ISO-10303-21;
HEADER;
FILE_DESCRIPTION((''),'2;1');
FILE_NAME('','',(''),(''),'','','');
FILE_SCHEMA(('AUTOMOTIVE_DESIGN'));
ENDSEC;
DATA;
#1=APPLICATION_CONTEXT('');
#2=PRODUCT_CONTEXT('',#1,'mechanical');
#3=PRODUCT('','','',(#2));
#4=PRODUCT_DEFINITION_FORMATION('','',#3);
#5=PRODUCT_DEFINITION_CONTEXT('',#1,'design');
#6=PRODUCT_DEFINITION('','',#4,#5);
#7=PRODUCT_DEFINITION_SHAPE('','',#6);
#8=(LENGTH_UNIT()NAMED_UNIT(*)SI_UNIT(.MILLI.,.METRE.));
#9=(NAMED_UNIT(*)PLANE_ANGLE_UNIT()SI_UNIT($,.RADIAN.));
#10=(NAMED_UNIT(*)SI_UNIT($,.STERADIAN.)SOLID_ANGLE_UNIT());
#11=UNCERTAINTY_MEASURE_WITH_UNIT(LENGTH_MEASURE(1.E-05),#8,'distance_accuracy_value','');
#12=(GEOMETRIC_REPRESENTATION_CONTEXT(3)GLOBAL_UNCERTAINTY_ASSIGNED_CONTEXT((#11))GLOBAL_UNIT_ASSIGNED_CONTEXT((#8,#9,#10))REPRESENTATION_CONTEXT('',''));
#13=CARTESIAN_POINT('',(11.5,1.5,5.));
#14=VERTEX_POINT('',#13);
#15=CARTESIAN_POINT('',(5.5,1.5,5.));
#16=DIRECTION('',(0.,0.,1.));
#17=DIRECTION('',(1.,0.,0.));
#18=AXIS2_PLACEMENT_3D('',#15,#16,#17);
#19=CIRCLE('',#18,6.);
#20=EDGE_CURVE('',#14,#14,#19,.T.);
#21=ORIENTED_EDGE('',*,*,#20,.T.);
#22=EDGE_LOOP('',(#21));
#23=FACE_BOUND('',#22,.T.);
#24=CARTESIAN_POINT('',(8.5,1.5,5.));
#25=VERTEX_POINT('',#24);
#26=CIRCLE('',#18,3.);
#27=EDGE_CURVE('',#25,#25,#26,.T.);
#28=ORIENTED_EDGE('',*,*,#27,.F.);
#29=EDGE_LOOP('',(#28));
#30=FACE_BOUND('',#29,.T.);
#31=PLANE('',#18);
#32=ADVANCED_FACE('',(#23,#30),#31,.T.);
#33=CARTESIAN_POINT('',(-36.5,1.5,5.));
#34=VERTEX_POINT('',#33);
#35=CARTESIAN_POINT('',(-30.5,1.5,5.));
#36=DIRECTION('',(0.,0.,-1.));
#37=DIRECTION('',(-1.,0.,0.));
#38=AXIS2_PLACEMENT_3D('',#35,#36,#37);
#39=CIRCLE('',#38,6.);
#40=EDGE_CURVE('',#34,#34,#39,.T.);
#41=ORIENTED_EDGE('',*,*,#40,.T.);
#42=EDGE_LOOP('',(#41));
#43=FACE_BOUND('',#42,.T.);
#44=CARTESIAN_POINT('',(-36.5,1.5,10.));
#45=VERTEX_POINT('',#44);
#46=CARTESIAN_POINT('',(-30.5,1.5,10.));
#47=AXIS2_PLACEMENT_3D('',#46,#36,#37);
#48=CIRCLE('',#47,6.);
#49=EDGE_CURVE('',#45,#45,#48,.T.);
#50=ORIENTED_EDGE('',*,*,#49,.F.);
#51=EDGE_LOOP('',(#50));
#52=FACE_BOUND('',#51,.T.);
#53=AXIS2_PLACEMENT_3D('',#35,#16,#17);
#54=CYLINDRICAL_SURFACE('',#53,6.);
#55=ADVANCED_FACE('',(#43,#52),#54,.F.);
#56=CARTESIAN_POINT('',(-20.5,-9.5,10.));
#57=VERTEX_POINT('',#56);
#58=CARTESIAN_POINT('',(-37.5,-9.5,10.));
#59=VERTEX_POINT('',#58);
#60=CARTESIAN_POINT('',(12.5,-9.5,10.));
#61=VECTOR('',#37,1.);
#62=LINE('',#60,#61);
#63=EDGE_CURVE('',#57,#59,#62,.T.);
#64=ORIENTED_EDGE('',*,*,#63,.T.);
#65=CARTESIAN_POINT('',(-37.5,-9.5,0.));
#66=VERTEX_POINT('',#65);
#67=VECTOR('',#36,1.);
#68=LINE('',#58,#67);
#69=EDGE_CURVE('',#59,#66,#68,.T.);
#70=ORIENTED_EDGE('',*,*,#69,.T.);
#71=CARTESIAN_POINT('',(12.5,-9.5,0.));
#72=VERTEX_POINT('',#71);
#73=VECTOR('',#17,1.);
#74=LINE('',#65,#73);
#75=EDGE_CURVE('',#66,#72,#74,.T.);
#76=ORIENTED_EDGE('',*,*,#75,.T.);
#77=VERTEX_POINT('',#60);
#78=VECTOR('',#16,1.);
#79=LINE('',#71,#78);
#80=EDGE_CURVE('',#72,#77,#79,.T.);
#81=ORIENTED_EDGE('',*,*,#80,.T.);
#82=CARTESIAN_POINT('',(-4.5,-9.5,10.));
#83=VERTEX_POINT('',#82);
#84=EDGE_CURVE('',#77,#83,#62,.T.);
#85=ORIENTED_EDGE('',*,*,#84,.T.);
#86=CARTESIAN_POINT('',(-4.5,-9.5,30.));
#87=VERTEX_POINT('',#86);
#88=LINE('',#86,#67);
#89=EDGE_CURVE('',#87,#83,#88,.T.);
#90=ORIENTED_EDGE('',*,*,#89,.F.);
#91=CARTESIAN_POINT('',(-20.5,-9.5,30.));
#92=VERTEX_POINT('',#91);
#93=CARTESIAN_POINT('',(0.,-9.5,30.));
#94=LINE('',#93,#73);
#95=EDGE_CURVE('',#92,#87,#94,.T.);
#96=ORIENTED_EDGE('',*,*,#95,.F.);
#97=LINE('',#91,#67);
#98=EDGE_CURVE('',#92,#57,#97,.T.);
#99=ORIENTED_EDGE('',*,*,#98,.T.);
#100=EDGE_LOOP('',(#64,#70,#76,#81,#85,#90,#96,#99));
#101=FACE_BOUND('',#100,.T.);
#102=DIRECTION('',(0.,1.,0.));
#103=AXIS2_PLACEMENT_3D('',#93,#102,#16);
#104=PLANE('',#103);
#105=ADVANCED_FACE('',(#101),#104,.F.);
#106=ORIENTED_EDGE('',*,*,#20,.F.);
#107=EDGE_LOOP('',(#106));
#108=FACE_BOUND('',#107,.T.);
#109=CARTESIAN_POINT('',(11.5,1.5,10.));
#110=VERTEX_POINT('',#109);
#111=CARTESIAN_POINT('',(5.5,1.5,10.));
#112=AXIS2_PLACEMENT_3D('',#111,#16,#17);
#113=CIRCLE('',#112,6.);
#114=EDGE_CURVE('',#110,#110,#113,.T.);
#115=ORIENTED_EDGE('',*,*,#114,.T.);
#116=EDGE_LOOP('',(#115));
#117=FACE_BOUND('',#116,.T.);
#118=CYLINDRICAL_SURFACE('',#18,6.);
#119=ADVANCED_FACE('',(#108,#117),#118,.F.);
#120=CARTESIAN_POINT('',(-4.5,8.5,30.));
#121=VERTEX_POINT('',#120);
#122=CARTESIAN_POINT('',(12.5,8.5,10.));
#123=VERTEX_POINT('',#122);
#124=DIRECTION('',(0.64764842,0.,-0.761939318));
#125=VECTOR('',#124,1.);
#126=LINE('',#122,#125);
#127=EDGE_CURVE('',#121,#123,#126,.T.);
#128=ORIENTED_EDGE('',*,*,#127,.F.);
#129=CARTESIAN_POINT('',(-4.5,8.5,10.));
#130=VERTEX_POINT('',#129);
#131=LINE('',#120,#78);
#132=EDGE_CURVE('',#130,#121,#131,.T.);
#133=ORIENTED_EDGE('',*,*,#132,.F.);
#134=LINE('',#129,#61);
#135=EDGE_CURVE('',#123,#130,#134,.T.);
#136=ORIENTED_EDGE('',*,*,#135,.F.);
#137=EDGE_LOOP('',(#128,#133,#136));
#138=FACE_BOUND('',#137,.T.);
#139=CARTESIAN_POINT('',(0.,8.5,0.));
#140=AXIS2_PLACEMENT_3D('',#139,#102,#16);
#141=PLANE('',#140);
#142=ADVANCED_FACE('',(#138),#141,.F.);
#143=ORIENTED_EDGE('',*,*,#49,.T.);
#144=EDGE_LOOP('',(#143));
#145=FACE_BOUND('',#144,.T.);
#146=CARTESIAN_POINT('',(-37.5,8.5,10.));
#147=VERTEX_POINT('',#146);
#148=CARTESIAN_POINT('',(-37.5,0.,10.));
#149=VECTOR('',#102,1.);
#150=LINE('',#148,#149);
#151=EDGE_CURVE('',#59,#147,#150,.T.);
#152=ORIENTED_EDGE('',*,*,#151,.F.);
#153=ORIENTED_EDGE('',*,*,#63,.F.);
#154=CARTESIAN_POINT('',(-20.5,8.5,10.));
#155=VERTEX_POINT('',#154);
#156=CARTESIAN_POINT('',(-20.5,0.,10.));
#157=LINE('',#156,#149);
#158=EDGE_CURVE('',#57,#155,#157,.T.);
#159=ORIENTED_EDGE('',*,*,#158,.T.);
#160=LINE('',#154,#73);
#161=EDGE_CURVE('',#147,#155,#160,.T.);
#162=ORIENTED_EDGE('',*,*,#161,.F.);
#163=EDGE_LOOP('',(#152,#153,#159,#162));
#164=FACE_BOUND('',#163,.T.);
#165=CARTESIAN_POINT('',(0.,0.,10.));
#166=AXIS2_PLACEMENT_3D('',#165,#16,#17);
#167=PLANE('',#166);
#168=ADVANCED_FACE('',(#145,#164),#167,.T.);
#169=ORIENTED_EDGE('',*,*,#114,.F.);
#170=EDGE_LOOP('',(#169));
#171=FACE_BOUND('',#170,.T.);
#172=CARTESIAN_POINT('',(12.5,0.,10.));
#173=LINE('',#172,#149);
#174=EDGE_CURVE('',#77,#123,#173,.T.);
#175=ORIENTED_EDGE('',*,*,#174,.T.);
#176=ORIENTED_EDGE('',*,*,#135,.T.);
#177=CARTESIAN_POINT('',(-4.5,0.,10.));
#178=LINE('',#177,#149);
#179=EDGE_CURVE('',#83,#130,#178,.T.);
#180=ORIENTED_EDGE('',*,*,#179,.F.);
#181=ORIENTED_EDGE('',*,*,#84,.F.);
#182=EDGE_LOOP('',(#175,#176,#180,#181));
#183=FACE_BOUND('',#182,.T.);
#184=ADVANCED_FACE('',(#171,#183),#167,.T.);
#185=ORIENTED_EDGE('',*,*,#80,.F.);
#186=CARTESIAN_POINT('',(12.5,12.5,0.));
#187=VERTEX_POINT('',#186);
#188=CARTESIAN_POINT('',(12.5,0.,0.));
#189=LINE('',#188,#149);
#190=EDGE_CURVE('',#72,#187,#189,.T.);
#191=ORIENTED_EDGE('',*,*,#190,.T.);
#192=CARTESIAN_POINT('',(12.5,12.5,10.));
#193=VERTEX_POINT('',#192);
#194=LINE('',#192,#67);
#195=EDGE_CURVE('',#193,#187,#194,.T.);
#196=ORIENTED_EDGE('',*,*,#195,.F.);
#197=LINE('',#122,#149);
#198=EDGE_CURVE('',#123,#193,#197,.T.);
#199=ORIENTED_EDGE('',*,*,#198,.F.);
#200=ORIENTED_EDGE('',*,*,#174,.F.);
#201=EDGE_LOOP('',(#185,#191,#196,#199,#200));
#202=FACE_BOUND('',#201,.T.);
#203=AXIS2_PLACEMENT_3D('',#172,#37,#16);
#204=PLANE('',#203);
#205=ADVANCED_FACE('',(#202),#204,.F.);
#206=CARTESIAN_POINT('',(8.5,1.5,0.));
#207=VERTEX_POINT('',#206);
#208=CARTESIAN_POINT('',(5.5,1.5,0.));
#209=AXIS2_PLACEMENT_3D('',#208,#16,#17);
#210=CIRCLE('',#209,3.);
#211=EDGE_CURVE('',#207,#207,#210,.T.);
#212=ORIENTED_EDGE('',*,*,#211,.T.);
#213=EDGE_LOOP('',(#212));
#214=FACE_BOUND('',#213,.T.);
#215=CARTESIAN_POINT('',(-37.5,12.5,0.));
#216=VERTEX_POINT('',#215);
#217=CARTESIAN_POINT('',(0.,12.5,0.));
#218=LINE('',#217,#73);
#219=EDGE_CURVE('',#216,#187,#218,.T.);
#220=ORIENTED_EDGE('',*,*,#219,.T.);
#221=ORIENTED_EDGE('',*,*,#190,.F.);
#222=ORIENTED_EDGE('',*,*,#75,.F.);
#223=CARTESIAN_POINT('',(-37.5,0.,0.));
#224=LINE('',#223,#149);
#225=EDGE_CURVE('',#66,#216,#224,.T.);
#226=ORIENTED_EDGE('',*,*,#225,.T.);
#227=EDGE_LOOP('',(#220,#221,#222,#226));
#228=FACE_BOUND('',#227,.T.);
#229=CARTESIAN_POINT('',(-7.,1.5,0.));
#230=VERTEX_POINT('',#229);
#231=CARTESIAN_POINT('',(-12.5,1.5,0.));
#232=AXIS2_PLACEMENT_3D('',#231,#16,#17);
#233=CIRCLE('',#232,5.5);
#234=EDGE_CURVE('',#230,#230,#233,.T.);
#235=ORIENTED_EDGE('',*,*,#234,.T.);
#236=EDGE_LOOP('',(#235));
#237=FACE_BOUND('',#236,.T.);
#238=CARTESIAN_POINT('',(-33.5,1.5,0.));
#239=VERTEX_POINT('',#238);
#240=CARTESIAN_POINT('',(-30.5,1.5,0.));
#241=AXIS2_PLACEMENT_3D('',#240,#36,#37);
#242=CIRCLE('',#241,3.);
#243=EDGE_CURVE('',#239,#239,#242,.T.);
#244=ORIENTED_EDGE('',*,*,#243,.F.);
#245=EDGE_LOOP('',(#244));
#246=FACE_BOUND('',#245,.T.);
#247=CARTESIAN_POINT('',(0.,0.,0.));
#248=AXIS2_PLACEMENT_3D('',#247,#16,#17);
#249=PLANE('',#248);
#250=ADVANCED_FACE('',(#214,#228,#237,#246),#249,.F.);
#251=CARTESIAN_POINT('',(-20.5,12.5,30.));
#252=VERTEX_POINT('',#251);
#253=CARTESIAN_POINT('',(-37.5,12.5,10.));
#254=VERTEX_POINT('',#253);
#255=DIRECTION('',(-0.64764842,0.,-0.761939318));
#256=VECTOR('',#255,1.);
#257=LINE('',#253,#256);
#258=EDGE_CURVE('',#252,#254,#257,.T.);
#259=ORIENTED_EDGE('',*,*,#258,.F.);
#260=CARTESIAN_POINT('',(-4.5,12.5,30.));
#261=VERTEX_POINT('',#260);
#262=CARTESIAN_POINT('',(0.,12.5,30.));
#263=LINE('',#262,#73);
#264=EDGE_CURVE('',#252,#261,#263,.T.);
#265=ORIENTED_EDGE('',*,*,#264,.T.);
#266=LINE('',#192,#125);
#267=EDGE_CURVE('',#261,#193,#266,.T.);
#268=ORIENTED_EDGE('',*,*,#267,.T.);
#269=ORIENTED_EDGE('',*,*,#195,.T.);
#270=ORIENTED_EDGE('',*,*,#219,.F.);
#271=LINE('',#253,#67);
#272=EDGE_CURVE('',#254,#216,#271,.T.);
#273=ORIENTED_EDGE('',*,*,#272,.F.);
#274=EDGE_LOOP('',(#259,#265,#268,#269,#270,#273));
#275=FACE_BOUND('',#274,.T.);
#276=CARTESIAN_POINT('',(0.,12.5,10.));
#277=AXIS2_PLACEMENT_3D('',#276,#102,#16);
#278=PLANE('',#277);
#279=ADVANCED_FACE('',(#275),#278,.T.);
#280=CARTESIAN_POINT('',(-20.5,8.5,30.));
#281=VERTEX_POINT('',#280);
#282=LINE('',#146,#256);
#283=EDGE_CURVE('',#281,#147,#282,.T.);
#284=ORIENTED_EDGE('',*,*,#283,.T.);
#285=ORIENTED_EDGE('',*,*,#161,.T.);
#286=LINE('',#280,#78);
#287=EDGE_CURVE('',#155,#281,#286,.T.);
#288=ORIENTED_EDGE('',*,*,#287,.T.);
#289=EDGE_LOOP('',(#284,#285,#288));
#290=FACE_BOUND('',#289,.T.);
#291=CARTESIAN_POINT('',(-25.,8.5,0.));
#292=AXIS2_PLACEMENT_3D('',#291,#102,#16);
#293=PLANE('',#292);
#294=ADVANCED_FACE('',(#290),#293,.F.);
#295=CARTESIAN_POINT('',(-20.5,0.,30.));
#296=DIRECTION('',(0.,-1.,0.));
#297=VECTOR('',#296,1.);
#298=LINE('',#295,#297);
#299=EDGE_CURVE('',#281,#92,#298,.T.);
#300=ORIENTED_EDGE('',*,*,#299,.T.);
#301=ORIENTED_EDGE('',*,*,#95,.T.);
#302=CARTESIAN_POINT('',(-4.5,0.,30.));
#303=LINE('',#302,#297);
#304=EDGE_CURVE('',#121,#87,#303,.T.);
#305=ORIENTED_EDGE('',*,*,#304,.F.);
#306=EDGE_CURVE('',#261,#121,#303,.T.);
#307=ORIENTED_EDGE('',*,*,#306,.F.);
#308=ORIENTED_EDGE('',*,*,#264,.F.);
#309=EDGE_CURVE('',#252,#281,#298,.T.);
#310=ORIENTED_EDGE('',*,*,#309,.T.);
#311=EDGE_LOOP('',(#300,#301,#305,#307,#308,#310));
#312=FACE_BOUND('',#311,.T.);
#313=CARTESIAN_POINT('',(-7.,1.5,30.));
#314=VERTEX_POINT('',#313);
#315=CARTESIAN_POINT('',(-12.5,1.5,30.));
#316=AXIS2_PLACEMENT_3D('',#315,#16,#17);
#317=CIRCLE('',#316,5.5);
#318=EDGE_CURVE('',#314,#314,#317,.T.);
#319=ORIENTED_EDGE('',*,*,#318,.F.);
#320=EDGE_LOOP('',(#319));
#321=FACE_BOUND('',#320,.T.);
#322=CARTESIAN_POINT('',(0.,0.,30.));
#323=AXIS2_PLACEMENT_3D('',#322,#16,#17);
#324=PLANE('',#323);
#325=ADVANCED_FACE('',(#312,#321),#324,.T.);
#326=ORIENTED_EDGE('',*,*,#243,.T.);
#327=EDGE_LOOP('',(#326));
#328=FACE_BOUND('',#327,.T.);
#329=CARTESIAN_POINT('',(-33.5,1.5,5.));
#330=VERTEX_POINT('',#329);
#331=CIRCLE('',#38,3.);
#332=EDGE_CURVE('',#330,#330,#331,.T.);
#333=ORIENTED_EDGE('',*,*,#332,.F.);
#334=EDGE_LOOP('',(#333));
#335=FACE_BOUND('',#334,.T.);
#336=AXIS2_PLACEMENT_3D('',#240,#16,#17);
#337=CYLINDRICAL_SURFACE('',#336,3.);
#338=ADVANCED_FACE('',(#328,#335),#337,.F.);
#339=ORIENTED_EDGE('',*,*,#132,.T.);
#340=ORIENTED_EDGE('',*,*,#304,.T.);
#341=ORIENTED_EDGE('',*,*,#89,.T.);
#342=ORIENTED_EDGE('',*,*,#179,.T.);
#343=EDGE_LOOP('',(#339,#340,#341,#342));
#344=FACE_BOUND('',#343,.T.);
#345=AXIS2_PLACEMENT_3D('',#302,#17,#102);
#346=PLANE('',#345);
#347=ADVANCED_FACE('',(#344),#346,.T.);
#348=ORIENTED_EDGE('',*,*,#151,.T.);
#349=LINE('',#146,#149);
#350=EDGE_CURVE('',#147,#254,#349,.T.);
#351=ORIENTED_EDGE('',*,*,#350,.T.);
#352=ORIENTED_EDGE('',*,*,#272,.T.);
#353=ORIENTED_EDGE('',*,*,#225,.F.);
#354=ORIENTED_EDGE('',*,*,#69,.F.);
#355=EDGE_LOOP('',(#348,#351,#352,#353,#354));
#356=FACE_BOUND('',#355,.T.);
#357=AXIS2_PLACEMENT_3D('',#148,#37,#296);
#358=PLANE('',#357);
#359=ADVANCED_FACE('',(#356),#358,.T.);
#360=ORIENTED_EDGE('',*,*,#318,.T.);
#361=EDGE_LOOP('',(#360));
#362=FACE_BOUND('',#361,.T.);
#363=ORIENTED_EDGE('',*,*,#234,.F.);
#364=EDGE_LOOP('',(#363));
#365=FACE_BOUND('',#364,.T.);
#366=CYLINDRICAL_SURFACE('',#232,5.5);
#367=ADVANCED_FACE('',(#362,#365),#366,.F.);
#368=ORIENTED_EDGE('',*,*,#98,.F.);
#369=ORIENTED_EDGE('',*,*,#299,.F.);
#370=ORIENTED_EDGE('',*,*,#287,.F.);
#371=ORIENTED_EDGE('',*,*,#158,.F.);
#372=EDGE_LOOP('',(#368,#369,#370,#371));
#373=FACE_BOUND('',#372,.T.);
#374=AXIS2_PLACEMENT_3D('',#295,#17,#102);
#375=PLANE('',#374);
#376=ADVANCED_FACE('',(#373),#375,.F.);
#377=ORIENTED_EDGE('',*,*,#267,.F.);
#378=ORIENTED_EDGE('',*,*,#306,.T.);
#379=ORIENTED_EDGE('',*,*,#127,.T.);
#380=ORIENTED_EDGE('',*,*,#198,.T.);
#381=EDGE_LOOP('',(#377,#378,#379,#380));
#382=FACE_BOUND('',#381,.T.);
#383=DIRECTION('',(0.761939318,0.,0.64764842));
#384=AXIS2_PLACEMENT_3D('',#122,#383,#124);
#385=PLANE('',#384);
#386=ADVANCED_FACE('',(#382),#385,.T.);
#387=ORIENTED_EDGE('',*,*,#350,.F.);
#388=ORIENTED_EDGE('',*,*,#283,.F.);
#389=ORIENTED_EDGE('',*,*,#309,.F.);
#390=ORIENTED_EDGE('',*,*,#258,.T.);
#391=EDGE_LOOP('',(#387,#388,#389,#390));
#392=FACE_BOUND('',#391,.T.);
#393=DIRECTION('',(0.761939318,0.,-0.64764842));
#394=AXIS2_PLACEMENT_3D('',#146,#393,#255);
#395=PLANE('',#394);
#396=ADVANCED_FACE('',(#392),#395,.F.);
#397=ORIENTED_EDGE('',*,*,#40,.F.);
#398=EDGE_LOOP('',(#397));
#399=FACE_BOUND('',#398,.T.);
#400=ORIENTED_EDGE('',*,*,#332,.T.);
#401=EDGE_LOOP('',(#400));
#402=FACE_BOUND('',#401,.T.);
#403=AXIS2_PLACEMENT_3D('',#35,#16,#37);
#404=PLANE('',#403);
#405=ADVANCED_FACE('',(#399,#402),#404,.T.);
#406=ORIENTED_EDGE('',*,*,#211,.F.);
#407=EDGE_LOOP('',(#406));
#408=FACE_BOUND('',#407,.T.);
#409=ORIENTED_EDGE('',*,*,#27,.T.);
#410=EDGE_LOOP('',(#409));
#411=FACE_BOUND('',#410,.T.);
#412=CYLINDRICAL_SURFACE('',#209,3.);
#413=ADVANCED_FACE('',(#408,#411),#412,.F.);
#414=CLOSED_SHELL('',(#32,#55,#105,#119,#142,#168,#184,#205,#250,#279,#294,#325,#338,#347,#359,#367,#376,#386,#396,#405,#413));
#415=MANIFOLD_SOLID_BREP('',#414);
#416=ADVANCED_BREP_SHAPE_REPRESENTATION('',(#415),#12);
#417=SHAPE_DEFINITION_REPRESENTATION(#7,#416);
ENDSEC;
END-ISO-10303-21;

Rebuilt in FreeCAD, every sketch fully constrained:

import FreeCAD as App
import Part
import Sketcher
from FreeCAD import Vector


def add_polygon(sketch, points):
    """Adds a closed chain of lines whose ends are joined by coincident constraints."""
    first, n = sketch.GeometryCount, len(points)
    for a, b in zip(points, points[1:] + points[:1]):
        sketch.addGeometry(Part.LineSegment(App.Vector(*a, 0), App.Vector(*b, 0)), False)
    for i in range(n):
        sketch.addConstraint(Sketcher.Constraint("Coincident", first + i, 2, first + (i + 1) % n, 1))

doc = App.newDocument("Part")
body = doc.addObject("PartDesign::Body", "Body")

# Sketch on XY plane
sketch1 = body.newObject("Sketcher::SketchObject", "Sketch")
sketch1.AttachmentSupport = (doc.getObject("XY_Plane"), [""])
sketch1.MapMode = "FlatFace"
add_polygon(sketch1, [(-12, -12), (12, -12), (12, 12), (-12, 12)])  # lines 0-3
sketch1.addConstraint(Sketcher.Constraint("Horizontal", 0))
sketch1.addConstraint(Sketcher.Constraint("Vertical", 1))
sketch1.addConstraint(Sketcher.Constraint("Horizontal", 2))
sketch1.addConstraint(Sketcher.Constraint("Vertical", 3))
sketch1.addConstraint(Sketcher.Constraint("Symmetric", 0, 2, 2, 2, -1, 1))
sketch1.addConstraint(Sketcher.Constraint("Equal", 2, 1))
sketch1.addConstraint(Sketcher.Constraint("DistanceX", 0, 1, 0, 2, 25.0))
pad1 = body.newObject("PartDesign::Pad", "Pad")
pad1.Profile = sketch1
pad1.Length = 10

# Sketch on XY plane
sketch2 = body.newObject("Sketcher::SketchObject", "Sketch001")
sketch2.AttachmentSupport = (doc.getObject("XY_Plane"), [""])
sketch2.MapMode = "FlatFace"
add_polygon(sketch2, [(-12, 12), (-12, -10), (-4, -10), (-4, 12)])  # lines 0-3
sketch2.addConstraint(Sketcher.Constraint("Vertical", 0))
sketch2.addConstraint(Sketcher.Constraint("Horizontal", 1))
sketch2.addConstraint(Sketcher.Constraint("Vertical", 2))
sketch2.addConstraint(Sketcher.Constraint("Horizontal", 3))
sketch2.addConstraint(Sketcher.Constraint("DistanceX", 1, 1, 1, 2, 8.0))
sketch2.addConstraint(Sketcher.Constraint("DistanceY", 0, 2, 0, 1, 22.0))
sketch2.addConstraint(Sketcher.Constraint("DistanceX", 0, 2, -1, 1, 12.5))
sketch2.addConstraint(Sketcher.Constraint("DistanceY", 0, 2, -1, 1, 9.5))
pad2 = body.newObject("PartDesign::Pad", "Pad001")
pad2.Profile = sketch2
pad2.Length = 30

# Sketch on XZ plane
sketch3 = body.newObject("Sketcher::SketchObject", "Sketch002")
sketch3.AttachmentSupport = (doc.getObject("XZ_Plane"), [""])
sketch3.MapMode = "FlatFace"
sketch3.AttachmentOffset = App.Placement(Vector(0, 0, -12.5), App.Rotation())
add_polygon(sketch3, [(-4, 30), (12, 10), (-4, 10)])  # lines 0-2
sketch3.addConstraint(Sketcher.Constraint("Horizontal", 1))
sketch3.addConstraint(Sketcher.Constraint("Vertical", 2))
sketch3.addConstraint(Sketcher.Constraint("DistanceX", 1, 2, 1, 1, 17.0))
sketch3.addConstraint(Sketcher.Constraint("DistanceY", 2, 1, 2, 2, 20.0))
sketch3.addConstraint(Sketcher.Constraint("DistanceY", -1, 1, 0, 2, 10.0))
sketch3.addConstraint(Sketcher.Constraint("DistanceX", -1, 1, 0, 2, 12.5))
pad3 = body.newObject("PartDesign::Pad", "Pad002")
pad3.Profile = sketch3
pad3.Length = 4

# Sketch on XY plane
sketch4 = body.newObject("Sketcher::SketchObject", "Sketch003")
sketch4.AttachmentSupport = (doc.getObject("XY_Plane"), [""])
sketch4.MapMode = "FlatFace"
sketch4.AttachmentOffset = App.Placement(Vector(0, 0, 10), App.Rotation())
sketch4.addGeometry(Part.Circle(Vector(6, 2, 0), Vector(0, 0, 1), 6), False)
sketch4.addConstraint(Sketcher.Constraint("Diameter", 0, 12.0))
sketch4.addConstraint(Sketcher.Constraint("DistanceX", -1, 1, 0, 3, 5.5))
sketch4.addConstraint(Sketcher.Constraint("DistanceY", -1, 1, 0, 3, 1.5))
pocket1 = body.newObject("PartDesign::Pocket", "Pocket")
pocket1.Profile = sketch4
pocket1.Length = 5

# Sketch on XY plane
sketch5 = body.newObject("Sketcher::SketchObject", "Sketch004")
sketch5.AttachmentSupport = (doc.getObject("XY_Plane"), [""])
sketch5.MapMode = "FlatFace"
sketch5.AttachmentOffset = App.Placement(Vector(0, 0, 5), App.Rotation())
sketch5.addGeometry(Part.Circle(Vector(5.5, 1.5, 0), Vector(0, 0, 1), 3), False)
sketch5.addConstraint(Sketcher.Constraint("Diameter", 0, 6.0))
sketch5.addConstraint(Sketcher.Constraint("DistanceX", -1, 1, 0, 3, 5.5))
sketch5.addConstraint(Sketcher.Constraint("DistanceY", -1, 1, 0, 3, 1.5))
pocket2 = body.newObject("PartDesign::Pocket", "Pocket001")
pocket2.Profile = sketch5
pocket2.Type = "ThroughAll"
doc.recompute()

datumplane = body.newObject("PartDesign::Plane", "DatumPlane")
datumplane.AttachmentSupport = (doc.getObject("YZ_Plane"), [""])
datumplane.MapMode = "FlatFace"
datumplane.AttachmentOffset = App.Placement(Vector(0, 0, -12.5), App.Rotation())
mirrored = body.newObject("PartDesign::Mirrored", "Mirrored")
mirrored.Originals = [pad1, pad2, pad3, pocket1, pocket2]
mirrored.MirrorPlane = (datumplane, [""])
body.Tip = mirrored

# Sketch on XY plane
sketch6 = body.newObject("Sketcher::SketchObject", "Sketch005")
sketch6.AttachmentSupport = (doc.getObject("XY_Plane"), [""])
sketch6.MapMode = "FlatFace"
sketch6.AttachmentOffset = App.Placement(Vector(0, 0, 30), App.Rotation())
sketch6.addGeometry(Part.Circle(Vector(-12, 2, 0), Vector(0, 0, 1), 6), False)
sketch6.addConstraint(Sketcher.Constraint("Diameter", 0, 11.0))
sketch6.addConstraint(Sketcher.Constraint("DistanceX", 0, 3, -1, 1, 12.5))
sketch6.addConstraint(Sketcher.Constraint("DistanceY", -1, 1, 0, 3, 1.5))
pocket3 = body.newObject("PartDesign::Pocket", "Pocket002")
pocket3.Profile = sketch6
pocket3.Type = "ThroughAll"

# Sketch on XZ plane
sketch7 = body.newObject("Sketcher::SketchObject", "Sketch006")
sketch7.AttachmentSupport = (doc.getObject("XZ_Plane"), [""])
sketch7.MapMode = "FlatFace"
sketch7.AttachmentOffset = App.Placement(Vector(0, 0, 12.5), App.Rotation())
add_polygon(sketch7, [(-38, 10), (-38, 0), (12, 0), (12, 10)])  # lines 0-3
sketch7.addConstraint(Sketcher.Constraint("Vertical", 0))
sketch7.addConstraint(Sketcher.Constraint("Horizontal", 1))
sketch7.addConstraint(Sketcher.Constraint("Vertical", 2))
sketch7.addConstraint(Sketcher.Constraint("Horizontal", 3))
sketch7.addConstraint(Sketcher.Constraint("PointOnObject", 0, 2, -1))
sketch7.addConstraint(Sketcher.Constraint("DistanceX", 1, 1, 1, 2, 50.0))
sketch7.addConstraint(Sketcher.Constraint("DistanceY", 0, 2, 0, 1, 10.0))
sketch7.addConstraint(Sketcher.Constraint("DistanceX", 0, 2, -1, 1, 37.5))
pocket4 = body.newObject("PartDesign::Pocket", "Pocket003")
pocket4.Profile = sketch7
pocket4.Length = 3

doc.recompute()
